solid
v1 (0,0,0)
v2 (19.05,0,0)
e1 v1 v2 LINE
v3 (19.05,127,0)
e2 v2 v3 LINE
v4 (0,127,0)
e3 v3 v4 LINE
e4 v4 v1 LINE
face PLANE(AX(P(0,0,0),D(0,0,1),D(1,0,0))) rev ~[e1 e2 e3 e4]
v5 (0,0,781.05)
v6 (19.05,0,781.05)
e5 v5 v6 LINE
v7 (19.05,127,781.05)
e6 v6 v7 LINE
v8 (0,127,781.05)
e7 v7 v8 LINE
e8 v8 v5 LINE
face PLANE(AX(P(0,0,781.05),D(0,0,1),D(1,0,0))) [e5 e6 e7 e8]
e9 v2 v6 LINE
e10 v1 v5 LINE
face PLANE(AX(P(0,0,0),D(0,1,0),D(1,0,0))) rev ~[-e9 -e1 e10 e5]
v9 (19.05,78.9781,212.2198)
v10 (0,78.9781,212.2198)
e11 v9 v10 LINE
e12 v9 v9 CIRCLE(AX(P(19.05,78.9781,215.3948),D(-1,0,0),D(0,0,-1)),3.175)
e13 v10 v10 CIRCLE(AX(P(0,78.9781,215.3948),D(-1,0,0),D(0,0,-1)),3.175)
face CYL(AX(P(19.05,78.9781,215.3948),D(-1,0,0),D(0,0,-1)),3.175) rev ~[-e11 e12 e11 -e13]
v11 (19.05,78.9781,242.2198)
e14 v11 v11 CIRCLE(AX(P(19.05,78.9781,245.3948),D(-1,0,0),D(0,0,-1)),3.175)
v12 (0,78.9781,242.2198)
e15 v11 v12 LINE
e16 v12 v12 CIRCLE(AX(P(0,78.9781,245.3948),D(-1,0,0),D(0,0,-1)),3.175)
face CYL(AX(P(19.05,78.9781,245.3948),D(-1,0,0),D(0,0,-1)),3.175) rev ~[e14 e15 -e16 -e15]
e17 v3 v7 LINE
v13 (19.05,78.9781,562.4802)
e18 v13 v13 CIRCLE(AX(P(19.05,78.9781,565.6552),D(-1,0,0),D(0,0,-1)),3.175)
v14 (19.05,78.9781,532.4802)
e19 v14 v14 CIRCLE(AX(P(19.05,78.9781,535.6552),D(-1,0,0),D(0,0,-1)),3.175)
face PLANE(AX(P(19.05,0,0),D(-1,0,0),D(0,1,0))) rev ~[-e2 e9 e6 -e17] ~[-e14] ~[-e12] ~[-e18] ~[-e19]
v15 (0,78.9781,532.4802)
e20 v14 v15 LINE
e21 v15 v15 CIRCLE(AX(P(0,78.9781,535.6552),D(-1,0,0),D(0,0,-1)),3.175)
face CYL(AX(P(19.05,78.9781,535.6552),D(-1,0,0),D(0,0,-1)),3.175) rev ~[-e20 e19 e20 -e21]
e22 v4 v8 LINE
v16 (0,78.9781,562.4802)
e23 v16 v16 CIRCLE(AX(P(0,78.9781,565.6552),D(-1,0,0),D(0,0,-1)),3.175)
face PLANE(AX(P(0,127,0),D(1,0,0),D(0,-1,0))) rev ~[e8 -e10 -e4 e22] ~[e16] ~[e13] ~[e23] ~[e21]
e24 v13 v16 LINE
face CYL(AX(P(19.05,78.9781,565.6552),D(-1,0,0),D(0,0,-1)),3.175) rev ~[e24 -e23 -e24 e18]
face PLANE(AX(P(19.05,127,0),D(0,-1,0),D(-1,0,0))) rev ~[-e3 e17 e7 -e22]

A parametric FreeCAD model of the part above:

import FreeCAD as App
import Part
import Sketcher

V = App.Vector
Q = App.Units.Quantity

doc = App.newDocument("Part")
body = doc.addObject("PartDesign::Body", "Body")

# Sketch on XY plane
sketch1 = doc.addObject("Sketcher::SketchObject", "Sketch")
body.addObject(sketch1)
sketch1.AttachmentSupport = (doc.XY_Plane, [""])
sketch1.MapMode = "FlatFace"
sketch1.addGeometry(Part.LineSegment(V(0, 127, 0), V(0, 0, 0)), False)
sketch1.addGeometry(Part.LineSegment(V(0, 0, 0), V(19, 0, 0)), False)
sketch1.addGeometry(Part.LineSegment(V(19, 0, 0), V(19, 127, 0)), False)
sketch1.addGeometry(Part.LineSegment(V(19, 127, 0), V(0, 127, 0)), False)
sketch1.addConstraint(Sketcher.Constraint("Coincident", 0, 2, 1, 1))
sketch1.addConstraint(Sketcher.Constraint("Coincident", 1, 2, 2, 1))
sketch1.addConstraint(Sketcher.Constraint("Coincident", 2, 2, 3, 1))
sketch1.addConstraint(Sketcher.Constraint("Coincident", 3, 2, 0, 1))
sketch1.addConstraint(Sketcher.Constraint("Vertical", 0))
sketch1.addConstraint(Sketcher.Constraint("Horizontal", 1))
sketch1.addConstraint(Sketcher.Constraint("Vertical", 2))
sketch1.addConstraint(Sketcher.Constraint("Horizontal", 3))
sketch1.addConstraint(Sketcher.Constraint("Coincident", 0, 2, -1, 1))
sketch1.addConstraint(Sketcher.Constraint("DistanceY", 0, 2, 0, 1, Q("5 in")))
sketch1.addConstraint(Sketcher.Constraint("DistanceX", 1, 1, 1, 2, Q("0.75 in")))
pad1 = doc.addObject("PartDesign::Pad", "Pad")
body.addObject(pad1)
pad1.Profile = sketch1
pad1.Length = Q("30.75 in")

# Sketch on YZ plane
sketch2 = doc.addObject("Sketcher::SketchObject", "Sketch001")
body.addObject(sketch2)
sketch2.AttachmentSupport = (doc.YZ_Plane, [""])
sketch2.MapMode = "FlatFace"
sketch2.AttachmentOffset = App.Placement(V(0, 0, 0.75 * 25.4), App.Rotation())
sketch2.addGeometry(Part.Circle(V(79, 565.7, 0), V(0, 0, 1), 3.2), False)
sketch2.addGeometry(Part.Circle(V(79, 535.7, 0), V(0, 0, 1), 3.2), False)
sketch2.addGeometry(Part.Circle(V(79, 215.4, 0), V(0, 0, 1), 3.2), False)
sketch2.addGeometry(Part.Circle(V(79, 245.4, 0), V(0, 0, 1), 3.2), False)
sketch2.addConstraint(Sketcher.Constraint("Equal", 0, 1))
sketch2.addConstraint(Sketcher.Constraint("Equal", 1, 2))
sketch2.addConstraint(Sketcher.Constraint("Equal", 2, 3))
sketch2.addConstraint(Sketcher.Constraint("Vertical", 0, 3, 1, 3))
sketch2.addConstraint(Sketcher.Constraint("Vertical", 1, 3, 2, 3))
sketch2.addConstraint(Sketcher.Constraint("Vertical", 2, 3, 3, 3))
sketch2.addConstraint(Sketcher.Constraint("Diameter", 0, Q("0.25 in")))
sketch2.addConstraint(Sketcher.Constraint("DistanceX", -1, 1, 0, 3, Q("3.1093701 in")))
sketch2.addConstraint(Sketcher.Constraint("DistanceY", -1, 1, 0, 3, Q("22.2699 in")))
sketch2.addConstraint(Sketcher.Constraint("DistanceY", -1, 1, 2, 3, Q("8.4801 in")))
sketch2.addConstraint(Sketcher.Constraint("DistanceY", 1, 3, 0, 3, Q("1.1811 in")))
sketch2.addConstraint(Sketcher.Constraint("DistanceY", 2, 3, 3, 3, Q("1.1811 in")))
doc.recompute()
hole = doc.addObject("PartDesign::Hole", "Hole")
body.addObject(hole)
hole.Profile = sketch2
hole.ThreadType = "None"
hole.Diameter = Q("0.25 in")
hole.DepthType = "ThroughAll"

doc.recompute()
